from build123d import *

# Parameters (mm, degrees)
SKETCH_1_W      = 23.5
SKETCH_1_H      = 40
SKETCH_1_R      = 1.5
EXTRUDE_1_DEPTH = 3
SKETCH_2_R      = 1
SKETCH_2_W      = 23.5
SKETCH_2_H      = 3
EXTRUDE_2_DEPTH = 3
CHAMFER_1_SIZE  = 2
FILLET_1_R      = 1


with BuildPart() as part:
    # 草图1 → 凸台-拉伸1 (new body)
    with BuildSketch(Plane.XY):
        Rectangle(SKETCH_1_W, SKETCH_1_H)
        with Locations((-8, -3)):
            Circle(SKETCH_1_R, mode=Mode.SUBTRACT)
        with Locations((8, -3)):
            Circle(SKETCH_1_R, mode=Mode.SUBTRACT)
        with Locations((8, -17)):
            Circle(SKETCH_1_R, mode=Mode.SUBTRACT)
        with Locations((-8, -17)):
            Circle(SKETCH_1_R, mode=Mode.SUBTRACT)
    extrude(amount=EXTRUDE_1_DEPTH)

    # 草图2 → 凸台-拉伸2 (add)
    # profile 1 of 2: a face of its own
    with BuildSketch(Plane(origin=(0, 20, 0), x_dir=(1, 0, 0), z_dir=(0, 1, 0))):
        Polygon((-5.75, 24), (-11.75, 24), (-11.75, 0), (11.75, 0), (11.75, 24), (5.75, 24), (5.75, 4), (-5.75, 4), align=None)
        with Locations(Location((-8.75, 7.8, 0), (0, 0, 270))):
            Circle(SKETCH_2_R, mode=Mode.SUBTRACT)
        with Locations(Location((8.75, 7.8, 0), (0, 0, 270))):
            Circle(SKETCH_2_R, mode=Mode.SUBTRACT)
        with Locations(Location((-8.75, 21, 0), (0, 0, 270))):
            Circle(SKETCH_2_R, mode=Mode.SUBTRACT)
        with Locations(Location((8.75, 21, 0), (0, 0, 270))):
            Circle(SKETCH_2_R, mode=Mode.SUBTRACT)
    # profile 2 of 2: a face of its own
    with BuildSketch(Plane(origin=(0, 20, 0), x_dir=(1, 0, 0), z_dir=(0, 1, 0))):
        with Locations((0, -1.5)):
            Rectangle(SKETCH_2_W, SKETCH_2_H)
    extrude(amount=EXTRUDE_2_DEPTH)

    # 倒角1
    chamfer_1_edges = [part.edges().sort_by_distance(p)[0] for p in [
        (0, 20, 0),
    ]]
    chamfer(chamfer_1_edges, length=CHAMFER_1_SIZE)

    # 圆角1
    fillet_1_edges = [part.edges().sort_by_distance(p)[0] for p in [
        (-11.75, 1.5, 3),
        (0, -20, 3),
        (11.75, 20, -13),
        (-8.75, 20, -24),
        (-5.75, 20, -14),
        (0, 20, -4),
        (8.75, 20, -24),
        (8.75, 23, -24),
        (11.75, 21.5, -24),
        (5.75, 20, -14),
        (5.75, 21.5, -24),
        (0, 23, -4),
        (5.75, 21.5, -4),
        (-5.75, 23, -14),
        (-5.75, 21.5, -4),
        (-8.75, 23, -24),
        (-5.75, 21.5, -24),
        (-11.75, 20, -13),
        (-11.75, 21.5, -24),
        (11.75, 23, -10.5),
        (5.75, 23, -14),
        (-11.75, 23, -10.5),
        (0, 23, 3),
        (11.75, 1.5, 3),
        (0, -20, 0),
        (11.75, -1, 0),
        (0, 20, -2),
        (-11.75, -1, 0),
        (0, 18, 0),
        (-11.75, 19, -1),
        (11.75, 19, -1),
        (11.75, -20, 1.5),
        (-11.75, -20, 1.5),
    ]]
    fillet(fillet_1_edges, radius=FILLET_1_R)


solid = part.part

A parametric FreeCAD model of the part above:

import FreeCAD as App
import Part
import Sketcher

V = App.Vector
Q = App.Units.Quantity


def edges_at(feature, points):
    """Names of the edges that pass closest to the given points."""
    edges = feature.Shape.Edges
    near = lambda p: min(range(len(edges)), key=lambda i: edges[i].distToShape(Part.Vertex(*p))[0])
    return sorted({f"Edge{near(p) + 1}" for p in points})


def add_polygon(sketch, points):
    """Adds a closed chain of lines whose ends are joined by coincident constraints."""
    first, n = sketch.GeometryCount, len(points)
    for a, b in zip(points, points[1:] + points[:1]):
        sketch.addGeometry(Part.LineSegment(App.Vector(*a, 0), App.Vector(*b, 0)), False)
    for i in range(n):
        sketch.addConstraint(Sketcher.Constraint("Coincident", first + i, 2, first + (i + 1) % n, 1))

doc = App.newDocument("Part")
body = doc.addObject("PartDesign::Body", "Body")

# Sketch on XY plane
sketch1 = body.newObject("Sketcher::SketchObject", "Sketch")
sketch1.AttachmentSupport = (doc.getObject("XY_Plane"), [""])
sketch1.MapMode = "FlatFace"
add_polygon(sketch1, [(-11.75, 20), (-11.75, -20), (11.75, -20), (11.75, 20)])  # lines 0-3
sketch1.addGeometry(Part.Circle(V(-8, -17, 0), V(0, 0, 1), 1.5), False)  # 4
sketch1.addGeometry(Part.Circle(V(8, -17, 0), V(0, 0, 1), 1.5), False)  # 5
sketch1.addGeometry(Part.Circle(V(-8, -3, 0), V(0, 0, 1), 1.5), False)  # 6
sketch1.addGeometry(Part.Circle(V(8, -3, 0), V(0, 0, 1), 1.5), False)  # 7
sketch1.addConstraint([
    Sketcher.Constraint("Vertical", 0),
    Sketcher.Constraint("Horizontal", 1),
    Sketcher.Constraint("Vertical", 2),
    Sketcher.Constraint("Horizontal", 3),
    Sketcher.Constraint("Equal", 4, 5),
    Sketcher.Constraint("Equal", 5, 6),
    Sketcher.Constraint("Equal", 6, 7),
    Sketcher.Constraint("Symmetric", 0, 2, 2, 2, -1, 1),
    Sketcher.Constraint("Symmetric", 4, 3, 5, 3, -2),
    Sketcher.Constraint("Symmetric", 6, 3, 7, 3, -2),
    Sketcher.Constraint("Vertical", 4, 3, 6, 3),
    Sketcher.Constraint("Diameter", 4, Q("3 mm")),
    Sketcher.Constraint("DistanceY", 0, 2, 0, 1, Q("40 mm")),
    Sketcher.Constraint("DistanceX", 1, 1, 1, 2, Q("23.5 mm")),
    Sketcher.Constraint("DistanceX", 4, 3, -1, 1, Q("8 mm")),
    Sketcher.Constraint("DistanceY", 4, 3, -1, 1, Q("17 mm")),
    Sketcher.Constraint("DistanceY", 6, 3, -1, 1, Q("3 mm")),
])
pad1 = body.newObject("PartDesign::Pad", "Pad")
pad1.Profile = sketch1
pad1.Length = 3

# Sketch on XZ plane
sketch2 = body.newObject("Sketcher::SketchObject", "Sketch001")
sketch2.AttachmentSupport = (doc.getObject("XZ_Plane"), [""])
sketch2.MapMode = "FlatFace"
sketch2.AttachmentOffset = App.Placement(V(0, 0, -20), App.Rotation())
add_polygon(sketch2, [(-5.75, -24), (-11.75, -24), (-11.75, 3), (11.75, 3), (11.75, -24), (5.75, -24), (5.75, -4), (-5.75, -4)])  # lines 0-7
sketch2.addGeometry(Part.Circle(V(-8.75, -7.8, 0), V(0, 0, 1), 1), False)  # 8
sketch2.addGeometry(Part.Circle(V(8.75, -7.8, 0), V(0, 0, 1), 1), False)  # 9
sketch2.addGeometry(Part.Circle(V(-8.75, -21, 0), V(0, 0, 1), 1), False)  # 10
sketch2.addGeometry(Part.Circle(V(8.75, -21, 0), V(0, 0, 1), 1), False)  # 11
sketch2.addConstraint([
    Sketcher.Constraint("Horizontal", 0),
    Sketcher.Constraint("Vertical", 1),
    Sketcher.Constraint("Horizontal", 2),
    Sketcher.Constraint("Vertical", 3),
    Sketcher.Constraint("Horizontal", 4),
    Sketcher.Constraint("Vertical", 5),
    Sketcher.Constraint("Horizontal", 6),
    Sketcher.Constraint("Vertical", 7),
    Sketcher.Constraint("Equal", 8, 9),
    Sketcher.Constraint("Equal", 9, 10),
    Sketcher.Constraint("Equal", 10, 11),
    Sketcher.Constraint("Symmetric", 8, 3, 9, 3, -2),
    Sketcher.Constraint("Symmetric", 10, 3, 11, 3, -2),
    Sketcher.Constraint("Symmetric", 0, 2, 3, 2, -2),
    Sketcher.Constraint("Vertical", 8, 3, 10, 3),
    Sketcher.Constraint("Equal", 0, 4),
    Sketcher.Constraint("Diameter", 8, Q("2 mm")),
    Sketcher.Constraint("DistanceX", 0, 2, 0, 1, Q("6 mm")),
    Sketcher.Constraint("DistanceY", 1, 1, 1, 2, Q("27 mm")),
    Sketcher.Constraint("DistanceY", 5, 1, 5, 2, Q("20 mm")),
    Sketcher.Constraint("DistanceX", 2, 1, 2, 2, Q("23.5 mm")),
    Sketcher.Constraint("DistanceY", 10, 3, -1, 1, Q("21 mm")),
    Sketcher.Constraint("DistanceY", 0, 2, -1, 1, Q("24 mm")),
    Sketcher.Constraint("DistanceX", 0, 2, 10, 3, Q("3 mm")),
    Sketcher.Constraint("DistanceY", 8, 3, -1, 1, Q("7.8 mm")),
])
pad2 = body.newObject("PartDesign::Pad", "Pad001")
pad2.Profile = sketch2
pad2.Length = 3
pad2.Reversed = True
doc.recompute()

chamfer = body.newObject("PartDesign::Chamfer", "Chamfer")
chamfer.Base = (pad2, edges_at(pad2, [(0, 20, 0)]))
chamfer.Size = 2
doc.recompute()

fillet = body.newObject("PartDesign::Fillet", "Fillet")
fillet.Base = (chamfer, edges_at(chamfer, [
    (-11.75, 1.5, 3),
    (0, -20, 3),
    (11.75, 20, -13),
    (-8.75, 20, -24),
    (-5.75, 20, -14),
    (0, 20, -4),
    (8.75, 20, -24),
    (8.75, 23, -24),
    (11.75, 21.5, -24),
    (5.75, 20, -14),
    (5.75, 21.5, -24),
    (0, 23, -4),
    (5.75, 21.5, -4),
    (-5.75, 23, -14),
    (-5.75, 21.5, -4),
    (-8.75, 23, -24),
    (-5.75, 21.5, -24),
    (-11.75, 20, -13),
    (-11.75, 21.5, -24),
    (11.75, 23, -10.5),
    (5.75, 23, -14),
    (-11.75, 23, -10.5),
    (0, 23, 3),
    (11.75, 1.5, 3),
    (0, -20, 0),
    (11.75, -1, 0),
    (0, 20, -2),
    (-11.75, -1, 0),
    (0, 18, 0),
    (-11.75, 19, -1),
    (11.75, 19, -1),
    (11.75, -20, 1.5),
    (-11.75, -20, 1.5),
]))
fillet.Radius = 1

doc.recompute()
